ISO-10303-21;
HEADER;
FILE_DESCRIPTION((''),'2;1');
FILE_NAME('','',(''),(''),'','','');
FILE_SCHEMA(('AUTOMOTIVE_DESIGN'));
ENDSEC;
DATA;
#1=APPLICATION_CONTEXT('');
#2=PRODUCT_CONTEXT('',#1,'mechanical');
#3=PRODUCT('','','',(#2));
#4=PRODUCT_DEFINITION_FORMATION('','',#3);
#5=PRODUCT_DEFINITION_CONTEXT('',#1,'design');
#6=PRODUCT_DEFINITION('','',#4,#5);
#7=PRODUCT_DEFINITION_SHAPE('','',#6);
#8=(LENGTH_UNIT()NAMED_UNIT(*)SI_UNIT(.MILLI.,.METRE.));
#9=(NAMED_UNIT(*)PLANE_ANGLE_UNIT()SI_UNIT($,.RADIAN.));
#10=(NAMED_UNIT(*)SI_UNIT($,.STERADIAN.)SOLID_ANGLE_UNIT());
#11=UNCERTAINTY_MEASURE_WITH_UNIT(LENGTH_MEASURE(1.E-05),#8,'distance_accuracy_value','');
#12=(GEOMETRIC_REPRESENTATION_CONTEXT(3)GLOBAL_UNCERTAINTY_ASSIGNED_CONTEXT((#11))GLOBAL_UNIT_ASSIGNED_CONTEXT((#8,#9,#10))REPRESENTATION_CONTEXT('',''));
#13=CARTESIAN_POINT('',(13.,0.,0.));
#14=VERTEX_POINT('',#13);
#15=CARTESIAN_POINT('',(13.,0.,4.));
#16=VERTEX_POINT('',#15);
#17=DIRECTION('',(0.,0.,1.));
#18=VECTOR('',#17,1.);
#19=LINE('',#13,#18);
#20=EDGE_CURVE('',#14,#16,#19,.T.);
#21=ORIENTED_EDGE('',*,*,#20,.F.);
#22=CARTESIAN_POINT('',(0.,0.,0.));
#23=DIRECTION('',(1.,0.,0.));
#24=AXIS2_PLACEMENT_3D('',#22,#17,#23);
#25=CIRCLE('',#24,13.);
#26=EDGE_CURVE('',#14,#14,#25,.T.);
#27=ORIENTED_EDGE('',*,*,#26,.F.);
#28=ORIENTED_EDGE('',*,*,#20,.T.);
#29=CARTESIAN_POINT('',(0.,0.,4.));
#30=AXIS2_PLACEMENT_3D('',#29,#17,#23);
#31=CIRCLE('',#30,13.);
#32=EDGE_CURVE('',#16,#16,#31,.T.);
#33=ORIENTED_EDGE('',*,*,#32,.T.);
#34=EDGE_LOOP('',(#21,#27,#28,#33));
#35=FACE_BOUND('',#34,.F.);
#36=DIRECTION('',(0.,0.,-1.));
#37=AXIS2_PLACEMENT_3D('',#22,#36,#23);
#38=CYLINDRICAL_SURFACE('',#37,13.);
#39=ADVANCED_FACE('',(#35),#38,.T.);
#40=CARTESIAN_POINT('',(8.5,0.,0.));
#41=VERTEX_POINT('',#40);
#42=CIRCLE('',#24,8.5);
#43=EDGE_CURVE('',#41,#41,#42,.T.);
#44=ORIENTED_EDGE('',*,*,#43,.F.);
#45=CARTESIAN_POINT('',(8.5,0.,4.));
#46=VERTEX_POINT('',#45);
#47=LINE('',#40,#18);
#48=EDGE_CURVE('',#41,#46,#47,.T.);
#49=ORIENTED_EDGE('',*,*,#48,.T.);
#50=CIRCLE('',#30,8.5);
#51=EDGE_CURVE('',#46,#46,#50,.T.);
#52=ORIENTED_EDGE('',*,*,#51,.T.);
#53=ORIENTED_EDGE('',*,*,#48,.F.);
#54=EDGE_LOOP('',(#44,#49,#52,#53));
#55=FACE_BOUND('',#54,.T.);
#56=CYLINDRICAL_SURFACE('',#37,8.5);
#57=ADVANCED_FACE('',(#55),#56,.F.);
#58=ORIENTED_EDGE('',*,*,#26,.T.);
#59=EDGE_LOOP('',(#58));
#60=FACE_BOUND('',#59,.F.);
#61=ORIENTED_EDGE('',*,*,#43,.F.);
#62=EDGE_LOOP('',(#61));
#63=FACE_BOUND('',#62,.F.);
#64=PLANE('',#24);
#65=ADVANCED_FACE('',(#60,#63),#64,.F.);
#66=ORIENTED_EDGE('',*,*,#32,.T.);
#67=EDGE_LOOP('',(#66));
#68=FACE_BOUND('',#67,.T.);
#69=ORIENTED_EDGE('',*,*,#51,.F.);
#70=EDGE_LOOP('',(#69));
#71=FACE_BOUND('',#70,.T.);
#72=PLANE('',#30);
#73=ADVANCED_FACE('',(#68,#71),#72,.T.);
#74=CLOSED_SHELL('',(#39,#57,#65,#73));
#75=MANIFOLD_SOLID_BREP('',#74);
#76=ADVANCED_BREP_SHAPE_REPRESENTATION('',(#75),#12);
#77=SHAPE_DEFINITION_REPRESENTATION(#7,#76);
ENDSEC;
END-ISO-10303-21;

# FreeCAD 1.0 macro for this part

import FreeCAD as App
import Part
import Sketcher
from FreeCAD import Vector

doc = App.newDocument("Part")
body = doc.addObject("PartDesign::Body", "Body")

sketch1 = doc.addObject("Sketcher::SketchObject", "Sketch")
body.addObject(sketch1)
sketch1.AttachmentSupport = (doc.XY_Plane, [""])
sketch1.MapMode = "FlatFace"
sketch1.addGeometry(Part.Circle(Vector(0, 0, 0), Vector(0, 0, 1), 13), False)
sketch1.addGeometry(Part.Circle(Vector(0, 0, 0), Vector(0, 0, 1), 8), False)
sketch1.addConstraint(Sketcher.Constraint("Coincident", 0, 3, -1, 1))
sketch1.addConstraint(Sketcher.Constraint("Coincident", 1, 3, -1, 1))
sketch1.addConstraint(Sketcher.Constraint("Diameter", 0, 26.0))
sketch1.addConstraint(Sketcher.Constraint("Diameter", 1, 17.0))
pad1 = doc.addObject("PartDesign::Pad", "Pad")
body.addObject(pad1)
pad1.Profile = sketch1
pad1.Length = 4

doc.recompute()
